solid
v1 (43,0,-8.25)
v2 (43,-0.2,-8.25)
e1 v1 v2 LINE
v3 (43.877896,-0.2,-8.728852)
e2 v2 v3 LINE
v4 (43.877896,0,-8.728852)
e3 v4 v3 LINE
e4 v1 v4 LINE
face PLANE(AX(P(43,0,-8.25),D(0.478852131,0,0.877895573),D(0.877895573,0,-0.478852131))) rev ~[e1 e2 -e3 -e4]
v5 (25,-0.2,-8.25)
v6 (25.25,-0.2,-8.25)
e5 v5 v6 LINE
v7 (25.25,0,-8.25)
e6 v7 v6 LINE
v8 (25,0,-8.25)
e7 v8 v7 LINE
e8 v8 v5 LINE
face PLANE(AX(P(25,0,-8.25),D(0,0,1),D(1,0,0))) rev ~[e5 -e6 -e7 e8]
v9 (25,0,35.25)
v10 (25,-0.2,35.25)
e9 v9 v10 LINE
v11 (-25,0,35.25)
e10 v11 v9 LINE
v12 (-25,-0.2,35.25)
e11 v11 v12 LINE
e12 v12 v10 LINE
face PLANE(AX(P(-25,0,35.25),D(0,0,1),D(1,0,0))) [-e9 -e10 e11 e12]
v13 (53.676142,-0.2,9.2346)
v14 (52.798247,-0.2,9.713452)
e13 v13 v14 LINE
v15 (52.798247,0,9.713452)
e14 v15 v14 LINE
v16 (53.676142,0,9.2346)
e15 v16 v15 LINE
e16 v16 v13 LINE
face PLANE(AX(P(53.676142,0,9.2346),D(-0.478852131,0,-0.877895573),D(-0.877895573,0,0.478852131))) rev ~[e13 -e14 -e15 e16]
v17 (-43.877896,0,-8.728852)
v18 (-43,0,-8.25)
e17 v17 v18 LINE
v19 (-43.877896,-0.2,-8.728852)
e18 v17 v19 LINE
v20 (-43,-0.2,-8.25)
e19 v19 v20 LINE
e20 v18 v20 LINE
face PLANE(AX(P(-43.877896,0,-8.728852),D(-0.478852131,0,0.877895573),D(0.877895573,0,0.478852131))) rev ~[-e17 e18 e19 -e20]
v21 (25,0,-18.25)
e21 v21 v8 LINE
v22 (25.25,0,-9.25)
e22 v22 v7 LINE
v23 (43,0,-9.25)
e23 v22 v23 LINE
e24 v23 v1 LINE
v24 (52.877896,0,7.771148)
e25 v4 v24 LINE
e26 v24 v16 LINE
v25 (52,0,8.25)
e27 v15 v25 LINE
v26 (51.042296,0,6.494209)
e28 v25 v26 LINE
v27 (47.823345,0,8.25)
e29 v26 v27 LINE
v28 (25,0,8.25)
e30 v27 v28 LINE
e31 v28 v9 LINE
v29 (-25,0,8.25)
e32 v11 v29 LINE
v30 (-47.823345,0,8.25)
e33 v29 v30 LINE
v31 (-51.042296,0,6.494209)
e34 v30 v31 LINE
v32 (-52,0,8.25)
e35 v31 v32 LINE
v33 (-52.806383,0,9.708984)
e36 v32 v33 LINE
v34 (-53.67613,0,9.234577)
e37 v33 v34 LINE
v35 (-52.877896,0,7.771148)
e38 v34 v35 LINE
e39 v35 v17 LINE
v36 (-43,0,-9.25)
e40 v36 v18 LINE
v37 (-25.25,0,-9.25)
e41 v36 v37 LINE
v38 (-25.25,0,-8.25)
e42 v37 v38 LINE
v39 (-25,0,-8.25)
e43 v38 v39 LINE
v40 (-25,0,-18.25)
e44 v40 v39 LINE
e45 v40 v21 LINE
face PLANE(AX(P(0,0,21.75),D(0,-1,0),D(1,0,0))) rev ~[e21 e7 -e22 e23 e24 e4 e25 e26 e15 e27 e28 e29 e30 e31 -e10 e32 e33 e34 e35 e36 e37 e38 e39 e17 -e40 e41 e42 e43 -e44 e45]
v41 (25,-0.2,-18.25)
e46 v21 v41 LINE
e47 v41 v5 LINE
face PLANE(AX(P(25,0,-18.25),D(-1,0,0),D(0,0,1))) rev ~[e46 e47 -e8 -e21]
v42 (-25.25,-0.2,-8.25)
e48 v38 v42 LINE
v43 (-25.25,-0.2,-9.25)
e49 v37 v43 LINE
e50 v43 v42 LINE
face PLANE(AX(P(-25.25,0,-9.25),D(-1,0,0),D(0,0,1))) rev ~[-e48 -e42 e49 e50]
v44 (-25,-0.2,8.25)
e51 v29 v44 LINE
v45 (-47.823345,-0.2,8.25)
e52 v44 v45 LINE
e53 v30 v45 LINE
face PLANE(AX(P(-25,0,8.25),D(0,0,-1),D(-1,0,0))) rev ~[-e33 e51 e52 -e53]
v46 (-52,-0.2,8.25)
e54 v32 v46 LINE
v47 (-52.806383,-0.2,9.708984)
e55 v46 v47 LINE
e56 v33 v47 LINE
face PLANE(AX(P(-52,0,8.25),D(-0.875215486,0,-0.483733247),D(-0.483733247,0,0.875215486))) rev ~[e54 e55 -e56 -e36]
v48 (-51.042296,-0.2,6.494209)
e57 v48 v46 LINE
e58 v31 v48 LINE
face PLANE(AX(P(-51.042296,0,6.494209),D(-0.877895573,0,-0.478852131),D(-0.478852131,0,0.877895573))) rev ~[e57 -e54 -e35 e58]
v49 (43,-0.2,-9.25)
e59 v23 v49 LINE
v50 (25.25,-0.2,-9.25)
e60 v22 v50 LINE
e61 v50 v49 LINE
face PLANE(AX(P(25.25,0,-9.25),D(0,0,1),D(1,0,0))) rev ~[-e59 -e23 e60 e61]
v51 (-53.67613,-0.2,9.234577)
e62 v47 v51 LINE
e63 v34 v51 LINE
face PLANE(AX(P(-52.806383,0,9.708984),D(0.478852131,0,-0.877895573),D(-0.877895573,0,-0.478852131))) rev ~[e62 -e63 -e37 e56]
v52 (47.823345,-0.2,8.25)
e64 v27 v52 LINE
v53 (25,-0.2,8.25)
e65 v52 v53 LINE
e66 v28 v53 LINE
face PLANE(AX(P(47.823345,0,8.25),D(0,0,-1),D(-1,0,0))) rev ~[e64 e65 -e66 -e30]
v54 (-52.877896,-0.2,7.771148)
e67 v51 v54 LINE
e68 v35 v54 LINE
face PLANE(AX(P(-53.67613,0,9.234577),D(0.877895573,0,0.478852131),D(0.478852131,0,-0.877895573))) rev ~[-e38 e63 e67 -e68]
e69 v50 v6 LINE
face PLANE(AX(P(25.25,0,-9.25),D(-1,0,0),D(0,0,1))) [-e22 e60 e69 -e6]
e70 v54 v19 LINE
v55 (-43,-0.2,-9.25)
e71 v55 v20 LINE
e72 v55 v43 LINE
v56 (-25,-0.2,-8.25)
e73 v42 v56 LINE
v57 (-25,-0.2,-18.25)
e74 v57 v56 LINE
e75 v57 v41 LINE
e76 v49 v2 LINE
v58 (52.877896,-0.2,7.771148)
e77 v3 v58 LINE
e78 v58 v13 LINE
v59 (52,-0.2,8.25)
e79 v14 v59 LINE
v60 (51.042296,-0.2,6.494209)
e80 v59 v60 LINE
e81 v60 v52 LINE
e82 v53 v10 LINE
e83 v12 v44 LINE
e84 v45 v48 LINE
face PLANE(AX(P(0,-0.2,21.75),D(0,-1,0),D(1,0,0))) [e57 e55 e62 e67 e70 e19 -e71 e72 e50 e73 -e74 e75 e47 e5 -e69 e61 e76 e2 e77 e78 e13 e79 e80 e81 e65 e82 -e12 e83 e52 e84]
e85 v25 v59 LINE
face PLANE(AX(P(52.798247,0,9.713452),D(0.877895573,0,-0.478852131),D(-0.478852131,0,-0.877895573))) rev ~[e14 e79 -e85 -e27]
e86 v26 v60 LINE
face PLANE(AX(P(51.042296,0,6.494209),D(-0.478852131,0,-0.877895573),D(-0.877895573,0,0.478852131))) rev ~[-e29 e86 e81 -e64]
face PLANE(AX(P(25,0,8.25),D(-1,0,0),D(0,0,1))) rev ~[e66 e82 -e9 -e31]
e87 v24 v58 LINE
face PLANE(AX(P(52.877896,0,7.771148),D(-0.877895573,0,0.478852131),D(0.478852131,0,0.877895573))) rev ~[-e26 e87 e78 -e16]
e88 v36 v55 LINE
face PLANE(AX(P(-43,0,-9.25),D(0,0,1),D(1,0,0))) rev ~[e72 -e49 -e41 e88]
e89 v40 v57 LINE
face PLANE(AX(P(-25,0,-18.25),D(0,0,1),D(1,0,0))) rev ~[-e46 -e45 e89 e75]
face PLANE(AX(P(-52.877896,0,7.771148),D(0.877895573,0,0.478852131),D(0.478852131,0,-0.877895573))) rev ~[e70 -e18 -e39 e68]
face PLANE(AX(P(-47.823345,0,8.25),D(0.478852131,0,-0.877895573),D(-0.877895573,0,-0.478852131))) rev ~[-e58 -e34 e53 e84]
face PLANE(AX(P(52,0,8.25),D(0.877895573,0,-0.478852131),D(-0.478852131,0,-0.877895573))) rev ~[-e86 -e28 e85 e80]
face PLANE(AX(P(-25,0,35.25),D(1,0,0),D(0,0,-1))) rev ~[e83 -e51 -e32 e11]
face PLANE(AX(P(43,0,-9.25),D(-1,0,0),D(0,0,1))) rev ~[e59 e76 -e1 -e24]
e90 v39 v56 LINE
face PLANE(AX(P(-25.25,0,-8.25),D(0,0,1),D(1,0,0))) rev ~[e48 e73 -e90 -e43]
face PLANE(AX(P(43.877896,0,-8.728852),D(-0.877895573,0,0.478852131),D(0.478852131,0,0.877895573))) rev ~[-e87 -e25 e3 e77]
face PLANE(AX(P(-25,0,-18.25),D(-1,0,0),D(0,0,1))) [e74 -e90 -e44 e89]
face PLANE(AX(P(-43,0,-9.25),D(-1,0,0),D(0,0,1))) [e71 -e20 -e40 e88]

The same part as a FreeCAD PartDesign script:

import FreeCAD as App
import Part
import Sketcher
from FreeCAD import Vector
Q = App.Units.Quantity

doc = App.newDocument("Part")
body = doc.addObject("PartDesign::Body", "Body")

sketch1 = body.newObject("Sketcher::SketchObject", "Sketch")
sketch1.AttachmentSupport = (doc.getObject("XZ_Plane"), [""])
sketch1.MapMode = "FlatFace"
sketch1.addGeometry([
    Part.LineSegment(Vector(-25, 35.25, 0), Vector(-25, 8.25, 0)),
    Part.LineSegment(Vector(-25, 8.25, 0), Vector(-47.82, 8.25, 0)),
    Part.LineSegment(Vector(-47.82, 8.25, 0), Vector(-51.04, 6.49, 0)),
    Part.LineSegment(Vector(-51.04, 6.49, 0), Vector(-52, 8.25, 0)),
    Part.LineSegment(Vector(-52, 8.25, 0), Vector(-52.81, 9.71, 0)),
    Part.LineSegment(Vector(-52.81, 9.71, 0), Vector(-53.68, 9.23, 0)),
    Part.LineSegment(Vector(-53.68, 9.23, 0), Vector(-52.88, 7.77, 0)),
    Part.LineSegment(Vector(-52.88, 7.77, 0), Vector(-43.88, -8.73, 0)),
    Part.LineSegment(Vector(-43.88, -8.73, 0), Vector(-43, -8.25, 0)),
    Part.LineSegment(Vector(-43, -8.25, 0), Vector(-43, -9.25, 0)),
    Part.LineSegment(Vector(-43, -9.25, 0), Vector(-25.25, -9.25, 0)),
    Part.LineSegment(Vector(-25.25, -9.25, 0), Vector(-25.25, -8.25, 0)),
    Part.LineSegment(Vector(-25.25, -8.25, 0), Vector(-25, -8.25, 0)),
    Part.LineSegment(Vector(-25, -8.25, 0), Vector(-25, -18.25, 0)),
    Part.LineSegment(Vector(-25, -18.25, 0), Vector(25, -18.25, 0)),
    Part.LineSegment(Vector(25, -18.25, 0), Vector(25, -8.25, 0)),
    Part.LineSegment(Vector(25, -8.25, 0), Vector(25.25, -8.25, 0)),
    Part.LineSegment(Vector(25.25, -8.25, 0), Vector(25.25, -9.25, 0)),
    Part.LineSegment(Vector(25.25, -9.25, 0), Vector(43, -9.25, 0)),
    Part.LineSegment(Vector(43, -9.25, 0), Vector(43, -8.25, 0)),
    Part.LineSegment(Vector(43, -8.25, 0), Vector(43.88, -8.73, 0)),
    Part.LineSegment(Vector(43.88, -8.73, 0), Vector(52.88, 7.77, 0)),
    Part.LineSegment(Vector(52.88, 7.77, 0), Vector(53.68, 9.23, 0)),
    Part.LineSegment(Vector(53.68, 9.23, 0), Vector(52.8, 9.71, 0)),
    Part.LineSegment(Vector(52.8, 9.71, 0), Vector(52, 8.25, 0)),
    Part.LineSegment(Vector(52, 8.25, 0), Vector(51.04, 6.49, 0)),
    Part.LineSegment(Vector(51.04, 6.49, 0), Vector(47.82, 8.25, 0)),
    Part.LineSegment(Vector(47.82, 8.25, 0), Vector(25, 8.25, 0)),
    Part.LineSegment(Vector(25, 8.25, 0), Vector(25, 35.25, 0)),
    Part.LineSegment(Vector(25, 35.25, 0), Vector(-25, 35.25, 0)),
], False)
sketch1.addConstraint([
    Sketcher.Constraint("Coincident", 0, 2, 1, 1),
    Sketcher.Constraint("Coincident", 1, 2, 2, 1),
    Sketcher.Constraint("Coincident", 2, 2, 3, 1),
    Sketcher.Constraint("Coincident", 3, 2, 4, 1),
    Sketcher.Constraint("Coincident", 4, 2, 5, 1),
    Sketcher.Constraint("Coincident", 5, 2, 6, 1),
    Sketcher.Constraint("Coincident", 6, 2, 7, 1),
    Sketcher.Constraint("Coincident", 7, 2, 8, 1),
    Sketcher.Constraint("Coincident", 8, 2, 9, 1),
    Sketcher.Constraint("Coincident", 9, 2, 10, 1),
    Sketcher.Constraint("Coincident", 10, 2, 11, 1),
    Sketcher.Constraint("Coincident", 11, 2, 12, 1),
    Sketcher.Constraint("Coincident", 12, 2, 13, 1),
    Sketcher.Constraint("Coincident", 13, 2, 14, 1),
    Sketcher.Constraint("Coincident", 14, 2, 15, 1),
    Sketcher.Constraint("Coincident", 15, 2, 16, 1),
    Sketcher.Constraint("Coincident", 16, 2, 17, 1),
    Sketcher.Constraint("Coincident", 17, 2, 18, 1),
    Sketcher.Constraint("Coincident", 18, 2, 19, 1),
    Sketcher.Constraint("Coincident", 19, 2, 20, 1),
    Sketcher.Constraint("Coincident", 20, 2, 21, 1),
    Sketcher.Constraint("Coincident", 21, 2, 22, 1),
    Sketcher.Constraint("Coincident", 22, 2, 23, 1),
    Sketcher.Constraint("Coincident", 23, 2, 24, 1),
    Sketcher.Constraint("Coincident", 24, 2, 25, 1),
    Sketcher.Constraint("Coincident", 25, 2, 26, 1),
    Sketcher.Constraint("Coincident", 26, 2, 27, 1),
    Sketcher.Constraint("Coincident", 27, 2, 28, 1),
    Sketcher.Constraint("Coincident", 28, 2, 29, 1),
    Sketcher.Constraint("Coincident", 29, 2, 0, 1),
    Sketcher.Constraint("Vertical", 0),
    Sketcher.Constraint("Horizontal", 1),
    Sketcher.Constraint("Vertical", 9),
    Sketcher.Constraint("Horizontal", 10),
    Sketcher.Constraint("Vertical", 11),
    Sketcher.Constraint("Horizontal", 12),
    Sketcher.Constraint("Vertical", 13),
    Sketcher.Constraint("Horizontal", 14),
    Sketcher.Constraint("Vertical", 15),
    Sketcher.Constraint("Horizontal", 16),
    Sketcher.Constraint("Vertical", 17),
    Sketcher.Constraint("Horizontal", 18),
    Sketcher.Constraint("Vertical", 19),
    Sketcher.Constraint("Horizontal", 27),
    Sketcher.Constraint("Vertical", 28),
    Sketcher.Constraint("Horizontal", 29),
    Sketcher.Constraint("Symmetric", 0, 2, 15, 2, -1, 1),
    Sketcher.Constraint("Symmetric", 12, 2, 27, 2, -1, 1),
    Sketcher.Constraint("Symmetric", 12, 2, 15, 2, -2),
    Sketcher.Constraint("Symmetric", 10, 2, 17, 2, -2),
    Sketcher.Constraint("Symmetric", 8, 2, 19, 2, -2),
    Sketcher.Constraint("Symmetric", 7, 2, 20, 2, -2),
    Sketcher.Constraint("Symmetric", 6, 2, 21, 2, -2),
    Sketcher.Constraint("Symmetric", 3, 2, 24, 2, -2),
    Sketcher.Constraint("Symmetric", 2, 2, 25, 2, -2),
    Sketcher.Constraint("Perpendicular", 2, 3),
    Sketcher.Constraint("Perpendicular", 3, 5),
    Sketcher.Constraint("Perpendicular", 5, 6),
    Sketcher.Constraint("Parallel", 6, 7),
    Sketcher.Constraint("Perpendicular", 7, 8),
    Sketcher.Constraint("Parallel", 21, 22),
    Sketcher.Constraint("Perpendicular", 22, 23),
    Sketcher.Constraint("Perpendicular", 23, 24),
    Sketcher.Constraint("Perpendicular", 25, 26),
    Sketcher.Constraint("Horizontal", 1, 2, 3, 2),
    Sketcher.Constraint("Horizontal", 8, 2, 11, 2),
    Sketcher.Constraint("Equal", 4, 22),
    Sketcher.Constraint("Equal", 20, 23),
    Sketcher.Constraint("Equal", 22, 24),
    Sketcher.Constraint("DistanceX", 14, 1, 14, 2, Q("50 mm")),
    Sketcher.Constraint("DistanceY", 0, 2, 0, 1, Q("27 mm")),
    Sketcher.Constraint("DistanceY", 9, 2, 9, 1, Q("1 mm")),
    Sketcher.Constraint("DistanceY", 13, 2, 13, 1, Q("10 mm")),
    Sketcher.Constraint("Distance", 3, Q("2 mm")),
    Sketcher.Constraint("Distance", 8, Q("1 mm")),
    Sketcher.Constraint("DistanceX", 3, 2, -1, 1, Q("52 mm")),
    Sketcher.Constraint("DistanceX", 8, 2, -1, 1, Q("43 mm")),
    Sketcher.Constraint("DistanceX", 10, 1, 10, 2, Q("17.75 mm")),
    Sketcher.Constraint("DistanceY", 7, 2, 6, 2, Q("16.5 mm")),
    Sketcher.Constraint("Distance", 4, Q("1.667 mm")),
    Sketcher.Constraint("DistanceX", 4, 2, 1, 2, Q("4.983038 mm")),
])
pad1 = body.newObject("PartDesign::Pad", "Pad")
pad1.Profile = sketch1
pad1.Length = 0.2

doc.recompute()
